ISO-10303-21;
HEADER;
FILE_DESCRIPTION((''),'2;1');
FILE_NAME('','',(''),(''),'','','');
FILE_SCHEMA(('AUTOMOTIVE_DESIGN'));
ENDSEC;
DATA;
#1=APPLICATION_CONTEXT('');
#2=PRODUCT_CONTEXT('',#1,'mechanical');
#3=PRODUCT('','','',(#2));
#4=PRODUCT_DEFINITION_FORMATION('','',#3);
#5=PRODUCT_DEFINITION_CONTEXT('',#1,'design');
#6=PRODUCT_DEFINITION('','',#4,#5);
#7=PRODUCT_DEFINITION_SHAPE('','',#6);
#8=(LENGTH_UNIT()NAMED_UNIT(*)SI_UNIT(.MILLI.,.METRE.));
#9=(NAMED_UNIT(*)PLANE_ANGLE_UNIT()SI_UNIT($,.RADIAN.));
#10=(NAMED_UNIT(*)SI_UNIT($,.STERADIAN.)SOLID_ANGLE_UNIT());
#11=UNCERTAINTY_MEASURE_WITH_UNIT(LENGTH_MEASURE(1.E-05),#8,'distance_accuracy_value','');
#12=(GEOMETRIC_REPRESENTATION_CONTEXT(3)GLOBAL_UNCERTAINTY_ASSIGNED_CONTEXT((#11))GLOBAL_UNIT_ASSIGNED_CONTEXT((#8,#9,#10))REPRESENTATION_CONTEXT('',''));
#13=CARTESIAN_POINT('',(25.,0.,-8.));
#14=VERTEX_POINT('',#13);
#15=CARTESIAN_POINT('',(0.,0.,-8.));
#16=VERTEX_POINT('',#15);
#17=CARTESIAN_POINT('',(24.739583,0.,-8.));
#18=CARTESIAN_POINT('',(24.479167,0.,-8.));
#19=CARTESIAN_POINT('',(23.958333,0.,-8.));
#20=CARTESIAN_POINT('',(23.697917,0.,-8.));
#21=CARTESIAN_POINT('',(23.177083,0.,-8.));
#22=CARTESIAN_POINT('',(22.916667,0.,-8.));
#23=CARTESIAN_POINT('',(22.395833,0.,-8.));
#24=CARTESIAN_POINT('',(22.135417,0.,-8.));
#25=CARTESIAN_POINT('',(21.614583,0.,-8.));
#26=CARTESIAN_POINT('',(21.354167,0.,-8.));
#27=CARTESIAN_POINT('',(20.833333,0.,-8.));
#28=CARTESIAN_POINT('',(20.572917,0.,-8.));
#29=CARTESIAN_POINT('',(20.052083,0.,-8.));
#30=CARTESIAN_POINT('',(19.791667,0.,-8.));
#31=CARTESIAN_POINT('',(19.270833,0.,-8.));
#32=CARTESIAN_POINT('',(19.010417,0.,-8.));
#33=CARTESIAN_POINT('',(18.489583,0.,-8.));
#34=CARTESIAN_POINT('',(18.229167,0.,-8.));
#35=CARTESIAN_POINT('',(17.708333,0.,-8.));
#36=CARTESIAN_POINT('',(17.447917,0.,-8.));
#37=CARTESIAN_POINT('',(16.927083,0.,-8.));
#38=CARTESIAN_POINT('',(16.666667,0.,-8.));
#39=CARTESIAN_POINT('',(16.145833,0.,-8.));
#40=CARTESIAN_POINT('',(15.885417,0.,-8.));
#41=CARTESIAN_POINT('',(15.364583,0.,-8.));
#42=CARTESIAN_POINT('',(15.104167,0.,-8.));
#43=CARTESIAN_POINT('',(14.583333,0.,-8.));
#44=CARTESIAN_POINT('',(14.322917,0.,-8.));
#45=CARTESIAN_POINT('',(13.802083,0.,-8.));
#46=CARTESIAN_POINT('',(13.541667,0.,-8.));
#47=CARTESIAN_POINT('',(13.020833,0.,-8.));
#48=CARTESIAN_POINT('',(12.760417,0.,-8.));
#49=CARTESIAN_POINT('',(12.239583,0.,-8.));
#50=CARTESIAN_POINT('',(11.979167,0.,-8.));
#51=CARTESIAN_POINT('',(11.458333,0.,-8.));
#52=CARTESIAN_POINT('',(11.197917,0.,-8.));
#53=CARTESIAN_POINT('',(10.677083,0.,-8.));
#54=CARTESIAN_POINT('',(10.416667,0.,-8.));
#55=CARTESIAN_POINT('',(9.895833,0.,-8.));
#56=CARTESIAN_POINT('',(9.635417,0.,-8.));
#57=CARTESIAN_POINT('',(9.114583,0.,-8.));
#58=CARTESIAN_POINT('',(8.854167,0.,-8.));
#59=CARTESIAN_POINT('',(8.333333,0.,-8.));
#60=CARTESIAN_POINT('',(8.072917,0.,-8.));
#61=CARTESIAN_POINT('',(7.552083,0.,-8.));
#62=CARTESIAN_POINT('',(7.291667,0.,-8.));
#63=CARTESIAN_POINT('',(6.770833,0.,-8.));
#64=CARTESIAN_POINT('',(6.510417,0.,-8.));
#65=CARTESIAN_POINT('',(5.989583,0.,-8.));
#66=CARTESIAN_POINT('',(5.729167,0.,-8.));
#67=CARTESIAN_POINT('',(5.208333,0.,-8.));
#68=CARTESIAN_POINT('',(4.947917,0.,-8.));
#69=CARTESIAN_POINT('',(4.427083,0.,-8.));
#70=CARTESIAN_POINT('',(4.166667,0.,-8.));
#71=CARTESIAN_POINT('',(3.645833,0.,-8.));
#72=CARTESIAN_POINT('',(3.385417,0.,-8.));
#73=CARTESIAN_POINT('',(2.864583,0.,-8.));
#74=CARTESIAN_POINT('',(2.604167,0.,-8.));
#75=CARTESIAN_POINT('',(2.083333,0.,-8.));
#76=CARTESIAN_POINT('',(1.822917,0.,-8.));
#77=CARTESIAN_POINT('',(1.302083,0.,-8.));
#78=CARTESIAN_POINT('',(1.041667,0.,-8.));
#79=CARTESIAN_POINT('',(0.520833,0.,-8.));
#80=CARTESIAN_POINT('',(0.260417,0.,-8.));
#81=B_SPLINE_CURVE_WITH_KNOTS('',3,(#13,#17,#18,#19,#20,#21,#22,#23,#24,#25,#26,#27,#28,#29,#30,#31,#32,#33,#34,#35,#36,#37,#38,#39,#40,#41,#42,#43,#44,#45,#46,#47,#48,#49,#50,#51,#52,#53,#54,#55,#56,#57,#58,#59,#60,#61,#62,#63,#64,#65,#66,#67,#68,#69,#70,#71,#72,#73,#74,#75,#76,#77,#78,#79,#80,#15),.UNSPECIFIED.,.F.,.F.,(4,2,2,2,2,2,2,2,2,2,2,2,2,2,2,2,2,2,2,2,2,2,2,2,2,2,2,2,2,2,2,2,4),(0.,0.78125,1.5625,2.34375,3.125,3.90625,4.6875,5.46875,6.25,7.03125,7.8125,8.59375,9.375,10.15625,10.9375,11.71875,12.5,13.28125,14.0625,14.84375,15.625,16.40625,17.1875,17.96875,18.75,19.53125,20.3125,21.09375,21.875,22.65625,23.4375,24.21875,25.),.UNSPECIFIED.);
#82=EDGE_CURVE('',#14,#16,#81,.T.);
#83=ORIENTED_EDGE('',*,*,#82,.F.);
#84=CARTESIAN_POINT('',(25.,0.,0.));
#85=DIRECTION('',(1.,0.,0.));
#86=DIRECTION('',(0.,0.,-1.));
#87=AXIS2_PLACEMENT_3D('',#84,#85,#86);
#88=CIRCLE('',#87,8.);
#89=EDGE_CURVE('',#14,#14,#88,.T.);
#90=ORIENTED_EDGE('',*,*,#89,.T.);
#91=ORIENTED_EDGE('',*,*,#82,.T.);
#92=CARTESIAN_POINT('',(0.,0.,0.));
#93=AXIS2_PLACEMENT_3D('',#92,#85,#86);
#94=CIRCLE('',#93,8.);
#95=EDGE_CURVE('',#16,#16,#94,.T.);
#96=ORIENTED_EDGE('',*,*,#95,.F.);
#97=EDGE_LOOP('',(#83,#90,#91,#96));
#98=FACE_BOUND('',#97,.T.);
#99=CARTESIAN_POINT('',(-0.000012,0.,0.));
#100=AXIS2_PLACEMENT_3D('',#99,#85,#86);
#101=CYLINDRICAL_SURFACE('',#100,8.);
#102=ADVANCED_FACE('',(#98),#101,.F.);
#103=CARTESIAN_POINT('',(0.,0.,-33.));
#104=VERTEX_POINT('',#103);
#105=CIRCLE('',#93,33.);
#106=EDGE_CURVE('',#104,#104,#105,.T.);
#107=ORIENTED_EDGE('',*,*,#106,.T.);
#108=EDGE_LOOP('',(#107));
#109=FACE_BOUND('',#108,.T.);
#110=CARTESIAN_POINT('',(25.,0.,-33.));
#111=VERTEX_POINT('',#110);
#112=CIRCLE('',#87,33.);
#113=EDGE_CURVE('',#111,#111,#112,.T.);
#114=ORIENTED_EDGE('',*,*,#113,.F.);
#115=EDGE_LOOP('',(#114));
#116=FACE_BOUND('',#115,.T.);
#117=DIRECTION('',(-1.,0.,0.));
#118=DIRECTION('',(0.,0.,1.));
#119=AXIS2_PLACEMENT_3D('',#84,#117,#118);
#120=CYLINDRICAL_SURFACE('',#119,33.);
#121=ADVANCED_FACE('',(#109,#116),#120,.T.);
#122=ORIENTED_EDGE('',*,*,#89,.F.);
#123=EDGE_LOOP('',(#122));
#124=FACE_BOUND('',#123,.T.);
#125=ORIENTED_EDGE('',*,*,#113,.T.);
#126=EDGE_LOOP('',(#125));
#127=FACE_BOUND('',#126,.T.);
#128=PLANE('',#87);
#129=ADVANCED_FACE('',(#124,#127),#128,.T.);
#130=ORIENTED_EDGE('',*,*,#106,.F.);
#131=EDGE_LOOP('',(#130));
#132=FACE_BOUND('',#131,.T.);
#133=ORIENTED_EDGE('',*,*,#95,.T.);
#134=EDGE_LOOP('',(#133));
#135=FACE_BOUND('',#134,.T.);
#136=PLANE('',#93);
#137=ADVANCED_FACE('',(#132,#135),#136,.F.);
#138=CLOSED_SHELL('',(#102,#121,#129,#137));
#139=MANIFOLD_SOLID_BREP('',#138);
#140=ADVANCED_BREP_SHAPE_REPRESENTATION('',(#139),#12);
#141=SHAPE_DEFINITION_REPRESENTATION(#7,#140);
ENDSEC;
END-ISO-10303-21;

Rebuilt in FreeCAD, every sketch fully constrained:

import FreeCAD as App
import Part
import Sketcher
Q = App.Units.Quantity

doc = App.newDocument("Part")
body = doc.addObject("PartDesign::Body", "Body")

# Sketch on YZ plane
sketch1 = body.newObject("Sketcher::SketchObject", "Sketch")
sketch1.AttachmentSupport = (doc.getObject("YZ_Plane"), [""])
sketch1.MapMode = "FlatFace"
sketch1.addGeometry(Part.Circle(App.Vector(0, 0, 0), App.Vector(0, 0, 1), 33), False)
sketch1.addConstraint([
    Sketcher.Constraint("Coincident", 0, 3, -1, 1),
    Sketcher.Constraint("Diameter", 0, Q("66 mm")),
])
pad1 = body.newObject("PartDesign::Pad", "Pad")
pad1.Profile = sketch1
pad1.Length = 25

# Sketch on YZ plane
sketch2 = body.newObject("Sketcher::SketchObject", "Sketch001")
sketch2.AttachmentSupport = (doc.getObject("YZ_Plane"), [""])
sketch2.MapMode = "FlatFace"
sketch2.addGeometry(Part.Circle(App.Vector(0, 0, 0), App.Vector(0, 0, 1), 8), False)
sketch2.addConstraint([
    Sketcher.Constraint("Coincident", 0, 3, -1, 1),
    Sketcher.Constraint("Diameter", 0, Q("16 mm")),
])
pocket1 = body.newObject("PartDesign::Pocket", "Pocket")
pocket1.Profile = sketch2
pocket1.Type = "ThroughAll"
pocket1.Midplane = True

doc.recompute()
